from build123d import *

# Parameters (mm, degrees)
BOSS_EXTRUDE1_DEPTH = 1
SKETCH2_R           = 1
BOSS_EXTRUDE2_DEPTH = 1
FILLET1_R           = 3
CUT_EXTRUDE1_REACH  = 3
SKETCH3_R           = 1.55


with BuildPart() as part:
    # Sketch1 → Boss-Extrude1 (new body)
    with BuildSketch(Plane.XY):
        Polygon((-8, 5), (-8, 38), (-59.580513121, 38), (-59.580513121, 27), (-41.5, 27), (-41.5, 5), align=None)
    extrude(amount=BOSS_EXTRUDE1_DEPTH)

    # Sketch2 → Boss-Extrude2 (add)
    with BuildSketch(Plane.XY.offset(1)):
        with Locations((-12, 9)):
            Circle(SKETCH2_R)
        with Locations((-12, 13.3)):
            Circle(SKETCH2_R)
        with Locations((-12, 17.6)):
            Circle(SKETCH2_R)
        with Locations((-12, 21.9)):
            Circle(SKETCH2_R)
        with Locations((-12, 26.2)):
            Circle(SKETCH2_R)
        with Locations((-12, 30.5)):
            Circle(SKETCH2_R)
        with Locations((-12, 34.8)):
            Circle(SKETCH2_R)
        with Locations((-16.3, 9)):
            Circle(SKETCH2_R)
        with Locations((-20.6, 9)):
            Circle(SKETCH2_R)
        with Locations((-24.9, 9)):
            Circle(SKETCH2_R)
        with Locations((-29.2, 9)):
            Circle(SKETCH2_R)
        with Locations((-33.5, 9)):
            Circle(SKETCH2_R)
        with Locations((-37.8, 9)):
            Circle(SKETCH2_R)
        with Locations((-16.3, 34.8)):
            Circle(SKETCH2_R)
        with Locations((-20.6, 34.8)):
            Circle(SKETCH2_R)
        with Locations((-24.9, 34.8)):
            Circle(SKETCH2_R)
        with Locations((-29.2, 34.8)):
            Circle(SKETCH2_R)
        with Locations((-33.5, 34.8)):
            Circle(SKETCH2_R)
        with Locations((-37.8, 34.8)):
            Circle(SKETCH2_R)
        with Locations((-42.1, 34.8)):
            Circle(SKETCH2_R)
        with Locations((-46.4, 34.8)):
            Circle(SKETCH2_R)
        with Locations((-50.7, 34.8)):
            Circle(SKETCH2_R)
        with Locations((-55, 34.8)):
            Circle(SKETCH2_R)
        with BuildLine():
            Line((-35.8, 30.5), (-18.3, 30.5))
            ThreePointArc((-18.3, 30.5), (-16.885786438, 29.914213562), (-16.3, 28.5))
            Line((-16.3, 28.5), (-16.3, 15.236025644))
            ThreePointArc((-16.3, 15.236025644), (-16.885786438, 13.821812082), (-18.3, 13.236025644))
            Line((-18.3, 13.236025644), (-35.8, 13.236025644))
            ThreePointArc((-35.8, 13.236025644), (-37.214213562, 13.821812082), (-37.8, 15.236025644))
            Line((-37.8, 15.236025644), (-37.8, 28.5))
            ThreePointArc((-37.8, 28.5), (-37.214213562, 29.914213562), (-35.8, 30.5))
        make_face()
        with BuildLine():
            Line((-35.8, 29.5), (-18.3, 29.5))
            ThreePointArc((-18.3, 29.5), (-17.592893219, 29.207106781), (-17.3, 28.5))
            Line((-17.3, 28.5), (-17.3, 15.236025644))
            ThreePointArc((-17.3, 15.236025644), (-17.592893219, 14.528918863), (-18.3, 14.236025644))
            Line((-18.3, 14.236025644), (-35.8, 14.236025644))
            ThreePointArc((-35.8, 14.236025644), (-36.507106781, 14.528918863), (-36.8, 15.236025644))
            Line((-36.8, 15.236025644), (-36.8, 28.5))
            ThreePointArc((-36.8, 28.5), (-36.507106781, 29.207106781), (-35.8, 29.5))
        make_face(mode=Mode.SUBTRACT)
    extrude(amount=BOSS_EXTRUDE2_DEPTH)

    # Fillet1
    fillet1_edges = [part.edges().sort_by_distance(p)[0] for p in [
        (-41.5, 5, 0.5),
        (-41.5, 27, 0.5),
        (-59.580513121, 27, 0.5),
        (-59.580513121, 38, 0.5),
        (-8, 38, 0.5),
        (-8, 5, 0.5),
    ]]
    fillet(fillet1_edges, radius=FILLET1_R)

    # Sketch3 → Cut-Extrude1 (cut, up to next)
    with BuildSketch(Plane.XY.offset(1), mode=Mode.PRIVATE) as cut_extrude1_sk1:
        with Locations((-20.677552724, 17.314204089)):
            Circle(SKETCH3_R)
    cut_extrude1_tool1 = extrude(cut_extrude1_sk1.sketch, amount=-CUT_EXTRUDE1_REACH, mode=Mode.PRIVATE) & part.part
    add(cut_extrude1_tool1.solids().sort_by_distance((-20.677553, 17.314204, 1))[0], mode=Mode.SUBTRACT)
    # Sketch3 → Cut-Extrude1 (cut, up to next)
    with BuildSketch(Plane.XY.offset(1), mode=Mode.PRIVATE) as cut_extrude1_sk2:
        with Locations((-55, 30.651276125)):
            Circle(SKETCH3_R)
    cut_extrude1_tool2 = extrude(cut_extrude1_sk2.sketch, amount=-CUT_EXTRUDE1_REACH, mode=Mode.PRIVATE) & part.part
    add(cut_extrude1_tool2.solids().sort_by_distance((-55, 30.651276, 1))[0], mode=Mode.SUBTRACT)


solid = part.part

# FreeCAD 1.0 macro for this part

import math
import FreeCAD as App
import Part
import Sketcher

V = App.Vector


def edges_at(feature, points):
    """Names of the edges that pass closest to the given points."""
    edges = feature.Shape.Edges
    near = lambda p: min(range(len(edges)), key=lambda i: edges[i].distToShape(Part.Vertex(*p))[0])
    return sorted({f"Edge{near(p) + 1}" for p in points})


def add_polygon(sketch, points):
    """Adds a closed chain of lines whose ends are joined by coincident constraints."""
    first, n = sketch.GeometryCount, len(points)
    for a, b in zip(points, points[1:] + points[:1]):
        sketch.addGeometry(Part.LineSegment(App.Vector(*a, 0), App.Vector(*b, 0)), False)
    for i in range(n):
        sketch.addConstraint(Sketcher.Constraint("Coincident", first + i, 2, first + (i + 1) % n, 1))

doc = App.newDocument("Part")
params = doc.addObject("Spreadsheet::Sheet", "Params")
for row, (alias, value) in enumerate([
    ("sketch1_height", "33 mm"),
    ("sketch1_height2", "11 mm"),
    ("sketch1_width", "33.5 mm"),
    ("pad1_length", "1 mm"),
    ("sketch2_diameter", "2 mm"),
    ("sketch2_radius", "2 mm"),
    ("sketch2_width", "17.5 mm"),
    ("pad2_length", "1 mm"),
    ("fillet_radius", "3 mm"),
    ("sketch3_diameter", "3.1 mm"),
    ("sketch4_diameter", "3.1 mm"),
], start=1):
    params.set(f"A{row}", alias)
    params.set(f"B{row}", "=" + value)
    params.setAlias(f"B{row}", alias)

body = doc.addObject("PartDesign::Body", "Body")

sketch1 = body.newObject("Sketcher::SketchObject", "Sketch")
sketch1.AttachmentSupport = (doc.getObject("XY_Plane"), [""])
sketch1.MapMode = "FlatFace"
add_polygon(sketch1, [(-8, 5), (-8, 38), (-60, 38), (-60, 27), (-42, 27), (-42, 5)])
sketch1.addConstraint(Sketcher.Constraint("Vertical", 0))
sketch1.addConstraint(Sketcher.Constraint("Horizontal", 1))
sketch1.addConstraint(Sketcher.Constraint("Vertical", 2))
sketch1.addConstraint(Sketcher.Constraint("Horizontal", 3))
sketch1.addConstraint(Sketcher.Constraint("Vertical", 4))
sketch1.addConstraint(Sketcher.Constraint("Horizontal", 5))
sketch1.addConstraint(Sketcher.Constraint("DistanceY", 0, 1, 0, 2, 33.0))
sketch1.addConstraint(Sketcher.Constraint("DistanceY", 2, 2, 2, 1, 11.0))
sketch1.addConstraint(Sketcher.Constraint("DistanceX", 5, 1, 5, 2, 33.5))
sketch1.addConstraint(Sketcher.Constraint("DistanceX", 0, 2, -1, 1, 8.0))
sketch1.addConstraint(Sketcher.Constraint("DistanceY", -1, 1, 0, 2, 38.0))
sketch1.addConstraint(Sketcher.Constraint("DistanceX", 1, 2, 1, 1, 51.580513))
sketch1.setExpression("Constraints[12]", "Params.sketch1_height")
sketch1.setExpression("Constraints[13]", "Params.sketch1_height2")
sketch1.setExpression("Constraints[14]", "Params.sketch1_width")
pad1 = body.newObject("PartDesign::Pad", "Pad")
pad1.Profile = sketch1
pad1.setExpression("Length", "Params.pad1_length")

sketch2 = body.newObject("Sketcher::SketchObject", "Sketch001")
sketch2.AttachmentSupport = (doc.getObject("XY_Plane"), [""])
sketch2.MapMode = "FlatFace"
sketch2.AttachmentOffset = App.Placement(V(0, 0, 1), App.Rotation())
sketch2.addGeometry(Part.Circle(V(-12, 9, 0), V(0, 0, 1), 1), False)
sketch2.addGeometry(Part.Circle(V(-12, 13.3, 0), V(0, 0, 1), 1), False)
sketch2.addGeometry(Part.Circle(V(-12, 17.6, 0), V(0, 0, 1), 1), False)
sketch2.addGeometry(Part.Circle(V(-12, 21.9, 0), V(0, 0, 1), 1), False)
sketch2.addGeometry(Part.Circle(V(-12, 26.2, 0), V(0, 0, 1), 1), False)
sketch2.addGeometry(Part.Circle(V(-12, 30.5, 0), V(0, 0, 1), 1), False)
sketch2.addGeometry(Part.Circle(V(-12, 34.8, 0), V(0, 0, 1), 1), False)
sketch2.addGeometry(Part.Circle(V(-16.3, 9, 0), V(0, 0, 1), 1), False)
sketch2.addGeometry(Part.Circle(V(-20.6, 9, 0), V(0, 0, 1), 1), False)
sketch2.addGeometry(Part.Circle(V(-24.9, 9, 0), V(0, 0, 1), 1), False)
sketch2.addGeometry(Part.Circle(V(-29.2, 9, 0), V(0, 0, 1), 1), False)
sketch2.addGeometry(Part.Circle(V(-33.5, 9, 0), V(0, 0, 1), 1), False)
sketch2.addGeometry(Part.Circle(V(-37.8, 9, 0), V(0, 0, 1), 1), False)
sketch2.addGeometry(Part.Circle(V(-16.3, 34.8, 0), V(0, 0, 1), 1), False)
sketch2.addGeometry(Part.Circle(V(-20.6, 34.8, 0), V(0, 0, 1), 1), False)
sketch2.addGeometry(Part.Circle(V(-24.9, 34.8, 0), V(0, 0, 1), 1), False)
sketch2.addGeometry(Part.Circle(V(-29.2, 34.8, 0), V(0, 0, 1), 1), False)
sketch2.addGeometry(Part.Circle(V(-33.5, 34.8, 0), V(0, 0, 1), 1), False)
sketch2.addGeometry(Part.Circle(V(-37.8, 34.8, 0), V(0, 0, 1), 1), False)
sketch2.addGeometry(Part.Circle(V(-42.1, 34.8, 0), V(0, 0, 1), 1), False)
sketch2.addGeometry(Part.Circle(V(-46.4, 34.8, 0), V(0, 0, 1), 1), False)
sketch2.addGeometry(Part.Circle(V(-50.7, 34.8, 0), V(0, 0, 1), 1), False)
sketch2.addGeometry(Part.Circle(V(-55, 34.8, 0), V(0, 0, 1), 1), False)
sketch2.addGeometry(Part.LineSegment(V(-18.3, 30.5, 0), V(-35.8, 30.5, 0)), False)
sketch2.addGeometry(Part.ArcOfCircle(Part.Circle(V(-35.8, 28.5, 0), V(0, 0, 1), 2), math.radians(90), math.radians(180)), False)
sketch2.addGeometry(Part.LineSegment(V(-37.8, 28.5, 0), V(-37.8, 15.2, 0)), False)
sketch2.addGeometry(Part.ArcOfCircle(Part.Circle(V(-35.8, 15.2, 0), V(0, 0, 1), 2), math.radians(-180), math.radians(-90)), False)
sketch2.addGeometry(Part.LineSegment(V(-35.8, 13.2, 0), V(-18.3, 13.2, 0)), False)
sketch2.addGeometry(Part.ArcOfCircle(Part.Circle(V(-18.3, 15.2, 0), V(0, 0, 1), 2), math.radians(-90), math.radians(0)), False)
sketch2.addGeometry(Part.LineSegment(V(-16.3, 15.2, 0), V(-16.3, 28.5, 0)), False)
sketch2.addGeometry(Part.ArcOfCircle(Part.Circle(V(-18.3, 28.5, 0), V(0, 0, 1), 2), math.radians(0), math.radians(90)), False)
sketch2.addGeometry(Part.LineSegment(V(-35.8, 29.5, 0), V(-18.3, 29.5, 0)), False)
sketch2.addGeometry(Part.ArcOfCircle(Part.Circle(V(-18.3, 28.5, 0), V(0, 0, 1), 1), math.radians(0), math.radians(90)), False)
sketch2.addGeometry(Part.LineSegment(V(-17.3, 28.5, 0), V(-17.3, 15.2, 0)), False)
sketch2.addGeometry(Part.ArcOfCircle(Part.Circle(V(-18.3, 15.2, 0), V(0, 0, 1), 1), math.radians(-90), math.radians(0)), False)
sketch2.addGeometry(Part.LineSegment(V(-18.3, 14.2, 0), V(-35.8, 14.2, 0)), False)
sketch2.addGeometry(Part.ArcOfCircle(Part.Circle(V(-35.8, 15.2, 0), V(0, 0, 1), 1), math.radians(-180), math.radians(-90)), False)
sketch2.addGeometry(Part.LineSegment(V(-36.8, 15.2, 0), V(-36.8, 28.5, 0)), False)
sketch2.addGeometry(Part.ArcOfCircle(Part.Circle(V(-35.8, 28.5, 0), V(0, 0, 1), 1), math.radians(90), math.radians(180)), False)
sketch2.addConstraint(Sketcher.Constraint("Tangent", 23, 2, 24, 1))
sketch2.addConstraint(Sketcher.Constraint("Tangent", 24, 2, 25, 1))
sketch2.addConstraint(Sketcher.Constraint("Tangent", 25, 2, 26, 1))
sketch2.addConstraint(Sketcher.Constraint("Tangent", 26, 2, 27, 1))
sketch2.addConstraint(Sketcher.Constraint("Tangent", 27, 2, 28, 1))
sketch2.addConstraint(Sketcher.Constraint("Tangent", 28, 2, 29, 1))
sketch2.addConstraint(Sketcher.Constraint("Tangent", 29, 2, 30, 1))
sketch2.addConstraint(Sketcher.Constraint("Tangent", 30, 2, 23, 1))
sketch2.addConstraint(Sketcher.Constraint("Tangent", 31, 2, 32, 2))
sketch2.addConstraint(Sketcher.Constraint("Tangent", 32, 1, 33, 1))
sketch2.addConstraint(Sketcher.Constraint("Tangent", 33, 2, 34, 2))
sketch2.addConstraint(Sketcher.Constraint("Tangent", 34, 1, 35, 1))
sketch2.addConstraint(Sketcher.Constraint("Tangent", 35, 2, 36, 2))
sketch2.addConstraint(Sketcher.Constraint("Tangent", 36, 1, 37, 1))
sketch2.addConstraint(Sketcher.Constraint("Tangent", 37, 2, 38, 2))
sketch2.addConstraint(Sketcher.Constraint("Tangent", 38, 1, 31, 1))
sketch2.addConstraint(Sketcher.Constraint("Horizontal", 23))
sketch2.addConstraint(Sketcher.Constraint("Vertical", 25))
sketch2.addConstraint(Sketcher.Constraint("Horizontal", 27))
sketch2.addConstraint(Sketcher.Constraint("Vertical", 29))
sketch2.addConstraint(Sketcher.Constraint("Horizontal", 31))
sketch2.addConstraint(Sketcher.Constraint("Vertical", 33))
sketch2.addConstraint(Sketcher.Constraint("Horizontal", 35))
sketch2.addConstraint(Sketcher.Constraint("Vertical", 37))
sketch2.addConstraint(Sketcher.Constraint("Coincident", 32, 3, 30, 3))
sketch2.addConstraint(Sketcher.Constraint("Coincident", 34, 3, 28, 3))
sketch2.addConstraint(Sketcher.Constraint("Coincident", 36, 3, 26, 3))
sketch2.addConstraint(Sketcher.Constraint("Equal", 0, 1))
sketch2.addConstraint(Sketcher.Constraint("Equal", 1, 2))
sketch2.addConstraint(Sketcher.Constraint("Equal", 2, 3))
sketch2.addConstraint(Sketcher.Constraint("Equal", 3, 4))
sketch2.addConstraint(Sketcher.Constraint("Equal", 4, 5))
sketch2.addConstraint(Sketcher.Constraint("Equal", 5, 6))
sketch2.addConstraint(Sketcher.Constraint("Equal", 6, 7))
sketch2.addConstraint(Sketcher.Constraint("Equal", 7, 8))
sketch2.addConstraint(Sketcher.Constraint("Equal", 8, 9))
sketch2.addConstraint(Sketcher.Constraint("Equal", 9, 10))
sketch2.addConstraint(Sketcher.Constraint("Equal", 10, 11))
sketch2.addConstraint(Sketcher.Constraint("Equal", 11, 12))
sketch2.addConstraint(Sketcher.Constraint("Equal", 12, 13))
sketch2.addConstraint(Sketcher.Constraint("Equal", 13, 14))
sketch2.addConstraint(Sketcher.Constraint("Equal", 14, 15))
sketch2.addConstraint(Sketcher.Constraint("Equal", 15, 16))
sketch2.addConstraint(Sketcher.Constraint("Equal", 16, 17))
sketch2.addConstraint(Sketcher.Constraint("Equal", 17, 18))
sketch2.addConstraint(Sketcher.Constraint("Equal", 18, 19))
sketch2.addConstraint(Sketcher.Constraint("Equal", 19, 20))
sketch2.addConstraint(Sketcher.Constraint("Equal", 20, 21))
sketch2.addConstraint(Sketcher.Constraint("Equal", 21, 22))
sketch2.addConstraint(Sketcher.Constraint("Equal", 24, 26))
sketch2.addConstraint(Sketcher.Constraint("Equal", 26, 28))
sketch2.addConstraint(Sketcher.Constraint("Equal", 28, 30))
sketch2.addConstraint(Sketcher.Constraint("Equal", 22, 32))
sketch2.addConstraint(Sketcher.Constraint("Equal", 36, 38))
sketch2.addConstraint(Sketcher.Constraint("Horizontal", 0, 3, 7, 3))
sketch2.addConstraint(Sketcher.Constraint("Horizontal", 7, 3, 8, 3))
sketch2.addConstraint(Sketcher.Constraint("Horizontal", 8, 3, 9, 3))
sketch2.addConstraint(Sketcher.Constraint("Horizontal", 9, 3, 10, 3))
sketch2.addConstraint(Sketcher.Constraint("Horizontal", 10, 3, 11, 3))
sketch2.addConstraint(Sketcher.Constraint("Horizontal", 11, 3, 12, 3))
sketch2.addConstraint(Sketcher.Constraint("Horizontal", 6, 3, 13, 3))
sketch2.addConstraint(Sketcher.Constraint("Horizontal", 13, 3, 14, 3))
sketch2.addConstraint(Sketcher.Constraint("Horizontal", 14, 3, 15, 3))
sketch2.addConstraint(Sketcher.Constraint("Horizontal", 15, 3, 16, 3))
sketch2.addConstraint(Sketcher.Constraint("Horizontal", 16, 3, 17, 3))
sketch2.addConstraint(Sketcher.Constraint("Horizontal", 17, 3, 18, 3))
sketch2.addConstraint(Sketcher.Constraint("Horizontal", 18, 3, 19, 3))
sketch2.addConstraint(Sketcher.Constraint("Horizontal", 19, 3, 20, 3))
sketch2.addConstraint(Sketcher.Constraint("Horizontal", 20, 3, 21, 3))
sketch2.addConstraint(Sketcher.Constraint("Horizontal", 21, 3, 22, 3))
sketch2.addConstraint(Sketcher.Constraint("Horizontal", 5, 3, 23, 2))
sketch2.addConstraint(Sketcher.Constraint("Vertical", 0, 3, 1, 3))
sketch2.addConstraint(Sketcher.Constraint("Vertical", 1, 3, 2, 3))
sketch2.addConstraint(Sketcher.Constraint("Vertical", 2, 3, 3, 3))
sketch2.addConstraint(Sketcher.Constraint("Vertical", 3, 3, 4, 3))
sketch2.addConstraint(Sketcher.Constraint("Vertical", 4, 3, 5, 3))
sketch2.addConstraint(Sketcher.Constraint("Vertical", 5, 3, 6, 3))
sketch2.addConstraint(Sketcher.Constraint("Vertical", 7, 3, 13, 3))
sketch2.addConstraint(Sketcher.Constraint("Vertical", 8, 3, 14, 3))
sketch2.addConstraint(Sketcher.Constraint("Vertical", 9, 3, 15, 3))
sketch2.addConstraint(Sketcher.Constraint("Vertical", 10, 3, 16, 3))
sketch2.addConstraint(Sketcher.Constraint("Vertical", 11, 3, 17, 3))
sketch2.addConstraint(Sketcher.Constraint("Vertical", 12, 3, 18, 3))
sketch2.addConstraint(Sketcher.Constraint("Vertical", 18, 3, 24, 2))
sketch2.addConstraint(Sketcher.Constraint("Vertical", 13, 3, 28, 2))
sketch2.addConstraint(Sketcher.Constraint("Diameter", 0, 2.0))
sketch2.addConstraint(Sketcher.Constraint("Radius", 24, 2.0))
sketch2.addConstraint(Sketcher.Constraint("DistanceX", 23, 2, 23, 1, 17.5))
sketch2.addConstraint(Sketcher.Constraint("DistanceX", 0, 3, -1, 1, 12.0))
sketch2.addConstraint(Sketcher.Constraint("DistanceY", -1, 1, 0, 3, 9.0))
sketch2.addConstraint(Sketcher.Constraint("DistanceX", 22, 3, -1, 1, 55.0))
sketch2.addConstraint(Sketcher.Constraint("DistanceY", -1, 1, 1, 3, 13.3))
sketch2.addConstraint(Sketcher.Constraint("DistanceY", -1, 1, 2, 3, 17.6))
sketch2.addConstraint(Sketcher.Constraint("DistanceY", -1, 1, 3, 3, 21.9))
sketch2.addConstraint(Sketcher.Constraint("DistanceY", -1, 1, 4, 3, 26.2))
sketch2.addConstraint(Sketcher.Constraint("DistanceY", -1, 1, 5, 3, 30.5))
sketch2.addConstraint(Sketcher.Constraint("DistanceY", -1, 1, 6, 3, 34.8))
sketch2.addConstraint(Sketcher.Constraint("DistanceX", 7, 3, -1, 1, 16.3))
sketch2.addConstraint(Sketcher.Constraint("DistanceX", 8, 3, -1, 1, 20.6))
sketch2.addConstraint(Sketcher.Constraint("DistanceX", 9, 3, -1, 1, 24.9))
sketch2.addConstraint(Sketcher.Constraint("DistanceX", 10, 3, -1, 1, 29.2))
sketch2.addConstraint(Sketcher.Constraint("DistanceX", 11, 3, -1, 1, 33.5))
sketch2.addConstraint(Sketcher.Constraint("DistanceX", 19, 3, -1, 1, 42.1))
sketch2.addConstraint(Sketcher.Constraint("DistanceX", 20, 3, -1, 1, 46.4))
sketch2.addConstraint(Sketcher.Constraint("DistanceX", 21, 3, -1, 1, 50.7))
sketch2.addConstraint(Sketcher.Constraint("DistanceY", 25, 2, 25, 1, 13.263974))
sketch2.setExpression("Constraints[85]", "Params.sketch2_diameter")
sketch2.setExpression("Constraints[86]", "Params.sketch2_radius")
sketch2.setExpression("Constraints[87]", "Params.sketch2_width")
pad2 = body.newObject("PartDesign::Pad", "Pad001")
pad2.Profile = sketch2
pad2.setExpression("Length", "Params.pad2_length")
doc.recompute()

fillet = body.newObject("PartDesign::Fillet", "Fillet")
fillet.Base = (pad2, edges_at(pad2, [
    (-41.5, 5, 0.5),
    (-41.5, 27, 0.5),
    (-59.581, 27, 0.5),
    (-59.581, 38, 0.5),
    (-8, 38, 0.5),
    (-8, 5, 0.5),
]))
fillet.setExpression("Radius", "Params.fillet_radius")

sketch3 = body.newObject("Sketcher::SketchObject", "Sketch002")
sketch3.AttachmentSupport = (doc.getObject("XY_Plane"), [""])
sketch3.MapMode = "FlatFace"
sketch3.AttachmentOffset = App.Placement(V(0, 0, 1), App.Rotation())
sketch3.addGeometry(Part.Circle(V(-20.7, 17.3, 0), V(0, 0, 1), 1.6), False)
sketch3.addConstraint(Sketcher.Constraint("Diameter", 0, 3.1))
sketch3.addConstraint(Sketcher.Constraint("DistanceX", 0, 3, -1, 1, 20.677553))
sketch3.addConstraint(Sketcher.Constraint("DistanceY", -1, 1, 0, 3, 17.314204))
sketch3.setExpression("Constraints[0]", "Params.sketch3_diameter")
pocket1 = body.newObject("PartDesign::Pocket", "Pocket")
pocket1.Profile = sketch3
pocket1.Type = "UpToFirst"

sketch4 = body.newObject("Sketcher::SketchObject", "Sketch003")
sketch4.AttachmentSupport = (doc.getObject("XY_Plane"), [""])
sketch4.MapMode = "FlatFace"
sketch4.AttachmentOffset = App.Placement(V(0, 0, 1), App.Rotation())
sketch4.addGeometry(Part.Circle(V(-55, 30.7, 0), V(0, 0, 1), 1.6), False)
sketch4.addConstraint(Sketcher.Constraint("Diameter", 0, 3.1))
sketch4.addConstraint(Sketcher.Constraint("DistanceX", 0, 3, -1, 1, 55.0))
sketch4.addConstraint(Sketcher.Constraint("DistanceY", -1, 1, 0, 3, 30.651276))
sketch4.setExpression("Constraints[0]", "Params.sketch4_diameter")
pocket2 = body.newObject("PartDesign::Pocket", "Pocket001")
pocket2.Profile = sketch4
pocket2.Type = "UpToFirst"

doc.recompute()
